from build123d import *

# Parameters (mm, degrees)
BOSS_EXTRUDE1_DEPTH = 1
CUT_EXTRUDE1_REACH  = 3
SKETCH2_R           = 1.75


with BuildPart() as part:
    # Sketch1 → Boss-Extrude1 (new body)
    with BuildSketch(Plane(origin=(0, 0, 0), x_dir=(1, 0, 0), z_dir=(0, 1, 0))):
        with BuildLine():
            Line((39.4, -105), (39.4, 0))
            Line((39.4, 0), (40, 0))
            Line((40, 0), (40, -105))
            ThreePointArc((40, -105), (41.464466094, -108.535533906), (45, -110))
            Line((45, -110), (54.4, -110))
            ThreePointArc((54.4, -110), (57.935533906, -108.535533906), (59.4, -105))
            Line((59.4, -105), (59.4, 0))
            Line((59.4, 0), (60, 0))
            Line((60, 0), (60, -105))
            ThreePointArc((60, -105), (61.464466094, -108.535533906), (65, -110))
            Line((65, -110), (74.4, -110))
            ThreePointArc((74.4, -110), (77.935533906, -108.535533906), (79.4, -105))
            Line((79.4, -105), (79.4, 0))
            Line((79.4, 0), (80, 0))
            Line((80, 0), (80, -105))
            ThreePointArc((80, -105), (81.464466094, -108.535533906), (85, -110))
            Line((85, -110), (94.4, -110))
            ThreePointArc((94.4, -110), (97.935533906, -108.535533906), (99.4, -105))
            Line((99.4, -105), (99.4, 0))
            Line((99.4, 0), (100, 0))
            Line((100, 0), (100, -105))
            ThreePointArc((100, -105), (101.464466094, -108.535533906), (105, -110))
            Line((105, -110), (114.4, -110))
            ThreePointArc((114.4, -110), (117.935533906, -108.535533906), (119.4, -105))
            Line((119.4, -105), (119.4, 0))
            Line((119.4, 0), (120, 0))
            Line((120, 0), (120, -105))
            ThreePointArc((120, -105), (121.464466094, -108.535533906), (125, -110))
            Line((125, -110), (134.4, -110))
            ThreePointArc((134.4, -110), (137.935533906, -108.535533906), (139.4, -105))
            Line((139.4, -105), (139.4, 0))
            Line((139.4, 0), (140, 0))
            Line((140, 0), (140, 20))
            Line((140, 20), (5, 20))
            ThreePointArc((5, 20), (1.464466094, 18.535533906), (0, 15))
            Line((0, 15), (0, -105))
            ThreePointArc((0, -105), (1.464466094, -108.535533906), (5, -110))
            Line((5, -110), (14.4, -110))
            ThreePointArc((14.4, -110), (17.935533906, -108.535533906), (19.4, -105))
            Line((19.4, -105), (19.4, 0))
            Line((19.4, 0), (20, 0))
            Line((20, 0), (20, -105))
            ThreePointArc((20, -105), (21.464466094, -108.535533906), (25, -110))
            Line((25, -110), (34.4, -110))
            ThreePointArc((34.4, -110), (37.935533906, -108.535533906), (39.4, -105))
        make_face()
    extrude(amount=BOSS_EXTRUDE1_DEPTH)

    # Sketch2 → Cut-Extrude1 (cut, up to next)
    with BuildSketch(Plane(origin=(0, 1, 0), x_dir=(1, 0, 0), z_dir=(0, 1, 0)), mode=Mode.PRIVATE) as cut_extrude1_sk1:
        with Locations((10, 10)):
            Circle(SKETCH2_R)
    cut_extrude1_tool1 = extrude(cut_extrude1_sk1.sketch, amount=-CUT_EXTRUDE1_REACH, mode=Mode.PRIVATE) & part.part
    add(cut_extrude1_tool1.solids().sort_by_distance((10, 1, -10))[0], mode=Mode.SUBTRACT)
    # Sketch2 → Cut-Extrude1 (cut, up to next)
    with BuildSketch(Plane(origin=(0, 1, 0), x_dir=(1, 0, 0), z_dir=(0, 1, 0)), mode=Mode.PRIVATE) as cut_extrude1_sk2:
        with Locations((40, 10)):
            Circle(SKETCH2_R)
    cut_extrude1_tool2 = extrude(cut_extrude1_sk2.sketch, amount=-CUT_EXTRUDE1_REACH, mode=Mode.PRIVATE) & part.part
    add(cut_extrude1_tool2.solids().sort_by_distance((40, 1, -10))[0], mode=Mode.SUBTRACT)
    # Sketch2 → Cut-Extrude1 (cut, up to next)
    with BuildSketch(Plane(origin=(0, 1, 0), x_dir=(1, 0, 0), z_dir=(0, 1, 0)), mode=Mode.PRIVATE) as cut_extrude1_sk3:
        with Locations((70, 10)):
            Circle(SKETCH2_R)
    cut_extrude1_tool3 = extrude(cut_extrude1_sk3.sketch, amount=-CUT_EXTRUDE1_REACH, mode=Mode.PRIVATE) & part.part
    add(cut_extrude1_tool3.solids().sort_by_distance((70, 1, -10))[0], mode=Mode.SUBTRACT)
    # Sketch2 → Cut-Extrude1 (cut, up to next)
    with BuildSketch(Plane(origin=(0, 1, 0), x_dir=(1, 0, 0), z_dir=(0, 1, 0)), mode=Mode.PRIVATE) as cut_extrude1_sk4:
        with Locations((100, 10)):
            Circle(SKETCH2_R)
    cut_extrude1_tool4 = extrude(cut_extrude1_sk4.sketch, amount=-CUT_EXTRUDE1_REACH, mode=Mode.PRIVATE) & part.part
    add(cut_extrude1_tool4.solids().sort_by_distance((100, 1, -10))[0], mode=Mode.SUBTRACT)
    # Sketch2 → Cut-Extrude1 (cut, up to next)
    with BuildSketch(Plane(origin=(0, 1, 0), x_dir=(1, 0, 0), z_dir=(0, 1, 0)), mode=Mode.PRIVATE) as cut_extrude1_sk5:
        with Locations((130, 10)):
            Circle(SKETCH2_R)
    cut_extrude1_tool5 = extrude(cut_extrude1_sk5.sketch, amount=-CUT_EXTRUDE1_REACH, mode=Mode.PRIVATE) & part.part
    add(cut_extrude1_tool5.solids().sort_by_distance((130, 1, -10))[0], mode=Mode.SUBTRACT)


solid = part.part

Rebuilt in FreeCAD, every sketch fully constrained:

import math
import FreeCAD as App
import Part
import Sketcher

V = App.Vector
Q = App.Units.Quantity

doc = App.newDocument("Part")
body = doc.addObject("PartDesign::Body", "Body")

# Sketch on XZ plane
sketch1 = body.newObject("Sketcher::SketchObject", "Sketch")
sketch1.AttachmentSupport = (doc.getObject("XZ_Plane"), [""])
sketch1.MapMode = "FlatFace"
sketch1.addGeometry(Part.LineSegment(V(39.4, 105, 0), V(39.4, 0, 0)), False)
sketch1.addGeometry(Part.LineSegment(V(39.4, 0, 0), V(40, 0, 0)), False)
sketch1.addGeometry(Part.LineSegment(V(40, 0, 0), V(40, 105, 0)), False)
sketch1.addGeometry(Part.ArcOfCircle(Part.Circle(V(45, 105, 0), V(0, 0, 1), 5), math.radians(90), math.radians(180)), False)
sketch1.addGeometry(Part.LineSegment(V(45, 110, 0), V(54.4, 110, 0)), False)
sketch1.addGeometry(Part.ArcOfCircle(Part.Circle(V(54.4, 105, 0), V(0, 0, 1), 5), math.radians(0), math.radians(90)), False)
sketch1.addGeometry(Part.LineSegment(V(59.4, 105, 0), V(59.4, 0, 0)), False)
sketch1.addGeometry(Part.LineSegment(V(59.4, 0, 0), V(60, 0, 0)), False)
sketch1.addGeometry(Part.LineSegment(V(60, 0, 0), V(60, 105, 0)), False)
sketch1.addGeometry(Part.ArcOfCircle(Part.Circle(V(65, 105, 0), V(0, 0, 1), 5), math.radians(90), math.radians(180)), False)
sketch1.addGeometry(Part.LineSegment(V(65, 110, 0), V(74.4, 110, 0)), False)
sketch1.addGeometry(Part.ArcOfCircle(Part.Circle(V(74.4, 105, 0), V(0, 0, 1), 5), math.radians(0), math.radians(90)), False)
sketch1.addGeometry(Part.LineSegment(V(79.4, 105, 0), V(79.4, 0, 0)), False)
sketch1.addGeometry(Part.LineSegment(V(79.4, 0, 0), V(80, 0, 0)), False)
sketch1.addGeometry(Part.LineSegment(V(80, 0, 0), V(80, 105, 0)), False)
sketch1.addGeometry(Part.ArcOfCircle(Part.Circle(V(85, 105, 0), V(0, 0, 1), 5), math.radians(90), math.radians(180)), False)
sketch1.addGeometry(Part.LineSegment(V(85, 110, 0), V(94.4, 110, 0)), False)
sketch1.addGeometry(Part.ArcOfCircle(Part.Circle(V(94.4, 105, 0), V(0, 0, 1), 5), math.radians(0), math.radians(90)), False)
sketch1.addGeometry(Part.LineSegment(V(99.4, 105, 0), V(99.4, 0, 0)), False)
sketch1.addGeometry(Part.LineSegment(V(99.4, 0, 0), V(100, 0, 0)), False)
sketch1.addGeometry(Part.LineSegment(V(100, 0, 0), V(100, 105, 0)), False)
sketch1.addGeometry(Part.ArcOfCircle(Part.Circle(V(105, 105, 0), V(0, 0, 1), 5), math.radians(90), math.radians(180)), False)
sketch1.addGeometry(Part.LineSegment(V(105, 110, 0), V(114.4, 110, 0)), False)
sketch1.addGeometry(Part.ArcOfCircle(Part.Circle(V(114.4, 105, 0), V(0, 0, 1), 5), math.radians(0), math.radians(90)), False)
sketch1.addGeometry(Part.LineSegment(V(119.4, 105, 0), V(119.4, 0, 0)), False)
sketch1.addGeometry(Part.LineSegment(V(119.4, 0, 0), V(120, 0, 0)), False)
sketch1.addGeometry(Part.LineSegment(V(120, 0, 0), V(120, 105, 0)), False)
sketch1.addGeometry(Part.ArcOfCircle(Part.Circle(V(125, 105, 0), V(0, 0, 1), 5), math.radians(90), math.radians(180)), False)
sketch1.addGeometry(Part.LineSegment(V(125, 110, 0), V(134.4, 110, 0)), False)
sketch1.addGeometry(Part.ArcOfCircle(Part.Circle(V(134.4, 105, 0), V(0, 0, 1), 5), math.radians(0), math.radians(90)), False)
sketch1.addGeometry(Part.LineSegment(V(139.4, 105, 0), V(139.4, 0, 0)), False)
sketch1.addGeometry(Part.LineSegment(V(139.4, 0, 0), V(140, 0, 0)), False)
sketch1.addGeometry(Part.LineSegment(V(140, 0, 0), V(140, -20, 0)), False)
sketch1.addGeometry(Part.LineSegment(V(140, -20, 0), V(5, -20, 0)), False)
sketch1.addGeometry(Part.ArcOfCircle(Part.Circle(V(5, -15, 0), V(0, 0, 1), 5), math.radians(180), math.radians(270)), False)
sketch1.addGeometry(Part.LineSegment(V(0, -15, 0), V(0, 105, 0)), False)
sketch1.addGeometry(Part.ArcOfCircle(Part.Circle(V(5, 105, 0), V(0, 0, 1), 5), math.radians(90), math.radians(180)), False)
sketch1.addGeometry(Part.LineSegment(V(5, 110, 0), V(14.4, 110, 0)), False)
sketch1.addGeometry(Part.ArcOfCircle(Part.Circle(V(14.4, 105, 0), V(0, 0, 1), 5), math.radians(0), math.radians(90)), False)
sketch1.addGeometry(Part.LineSegment(V(19.4, 105, 0), V(19.4, 0, 0)), False)
sketch1.addGeometry(Part.LineSegment(V(19.4, 0, 0), V(20, 0, 0)), False)
sketch1.addGeometry(Part.LineSegment(V(20, 0, 0), V(20, 105, 0)), False)
sketch1.addGeometry(Part.ArcOfCircle(Part.Circle(V(25, 105, 0), V(0, 0, 1), 5), math.radians(90), math.radians(180)), False)
sketch1.addGeometry(Part.LineSegment(V(25, 110, 0), V(34.4, 110, 0)), False)
sketch1.addGeometry(Part.ArcOfCircle(Part.Circle(V(34.4, 105, 0), V(0, 0, 1), 5), math.radians(0), math.radians(90)), False)
sketch1.addConstraint(Sketcher.Constraint("Coincident", 0, 2, 1, 1))
sketch1.addConstraint(Sketcher.Constraint("Coincident", 1, 2, 2, 1))
sketch1.addConstraint(Sketcher.Constraint("Tangent", 2, 2, 3, 2))
sketch1.addConstraint(Sketcher.Constraint("Tangent", 3, 1, 4, 1))
sketch1.addConstraint(Sketcher.Constraint("Tangent", 4, 2, 5, 2))
sketch1.addConstraint(Sketcher.Constraint("Tangent", 5, 1, 6, 1))
sketch1.addConstraint(Sketcher.Constraint("Coincident", 6, 2, 7, 1))
sketch1.addConstraint(Sketcher.Constraint("Coincident", 7, 2, 8, 1))
sketch1.addConstraint(Sketcher.Constraint("Tangent", 8, 2, 9, 2))
sketch1.addConstraint(Sketcher.Constraint("Tangent", 9, 1, 10, 1))
sketch1.addConstraint(Sketcher.Constraint("Tangent", 10, 2, 11, 2))
sketch1.addConstraint(Sketcher.Constraint("Tangent", 11, 1, 12, 1))
sketch1.addConstraint(Sketcher.Constraint("Coincident", 12, 2, 13, 1))
sketch1.addConstraint(Sketcher.Constraint("Coincident", 13, 2, 14, 1))
sketch1.addConstraint(Sketcher.Constraint("Tangent", 14, 2, 15, 2))
sketch1.addConstraint(Sketcher.Constraint("Tangent", 15, 1, 16, 1))
sketch1.addConstraint(Sketcher.Constraint("Tangent", 16, 2, 17, 2))
sketch1.addConstraint(Sketcher.Constraint("Tangent", 17, 1, 18, 1))
sketch1.addConstraint(Sketcher.Constraint("Coincident", 18, 2, 19, 1))
sketch1.addConstraint(Sketcher.Constraint("Coincident", 19, 2, 20, 1))
sketch1.addConstraint(Sketcher.Constraint("Tangent", 20, 2, 21, 2))
sketch1.addConstraint(Sketcher.Constraint("Tangent", 21, 1, 22, 1))
sketch1.addConstraint(Sketcher.Constraint("Tangent", 22, 2, 23, 2))
sketch1.addConstraint(Sketcher.Constraint("Tangent", 23, 1, 24, 1))
sketch1.addConstraint(Sketcher.Constraint("Coincident", 24, 2, 25, 1))
sketch1.addConstraint(Sketcher.Constraint("Coincident", 25, 2, 26, 1))
sketch1.addConstraint(Sketcher.Constraint("Tangent", 26, 2, 27, 2))
sketch1.addConstraint(Sketcher.Constraint("Tangent", 27, 1, 28, 1))
sketch1.addConstraint(Sketcher.Constraint("Tangent", 28, 2, 29, 2))
sketch1.addConstraint(Sketcher.Constraint("Tangent", 29, 1, 30, 1))
sketch1.addConstraint(Sketcher.Constraint("Coincident", 30, 2, 31, 1))
sketch1.addConstraint(Sketcher.Constraint("Coincident", 31, 2, 32, 1))
sketch1.addConstraint(Sketcher.Constraint("Coincident", 32, 2, 33, 1))
sketch1.addConstraint(Sketcher.Constraint("Tangent", 33, 2, 34, 2))
sketch1.addConstraint(Sketcher.Constraint("Tangent", 34, 1, 35, 1))
sketch1.addConstraint(Sketcher.Constraint("Tangent", 35, 2, 36, 2))
sketch1.addConstraint(Sketcher.Constraint("Tangent", 36, 1, 37, 1))
sketch1.addConstraint(Sketcher.Constraint("Tangent", 37, 2, 38, 2))
sketch1.addConstraint(Sketcher.Constraint("Tangent", 38, 1, 39, 1))
sketch1.addConstraint(Sketcher.Constraint("Coincident", 39, 2, 40, 1))
sketch1.addConstraint(Sketcher.Constraint("Coincident", 40, 2, 41, 1))
sketch1.addConstraint(Sketcher.Constraint("Tangent", 41, 2, 42, 2))
sketch1.addConstraint(Sketcher.Constraint("Tangent", 42, 1, 43, 1))
sketch1.addConstraint(Sketcher.Constraint("Tangent", 43, 2, 44, 2))
sketch1.addConstraint(Sketcher.Constraint("Tangent", 44, 1, 0, 1))
sketch1.addConstraint(Sketcher.Constraint("Vertical", 0))
sketch1.addConstraint(Sketcher.Constraint("Horizontal", 1))
sketch1.addConstraint(Sketcher.Constraint("Vertical", 2))
sketch1.addConstraint(Sketcher.Constraint("Horizontal", 4))
sketch1.addConstraint(Sketcher.Constraint("Vertical", 6))
sketch1.addConstraint(Sketcher.Constraint("Horizontal", 7))
sketch1.addConstraint(Sketcher.Constraint("Vertical", 8))
sketch1.addConstraint(Sketcher.Constraint("Horizontal", 10))
sketch1.addConstraint(Sketcher.Constraint("Vertical", 12))
sketch1.addConstraint(Sketcher.Constraint("Horizontal", 13))
sketch1.addConstraint(Sketcher.Constraint("Vertical", 14))
sketch1.addConstraint(Sketcher.Constraint("Horizontal", 16))
sketch1.addConstraint(Sketcher.Constraint("Vertical", 18))
sketch1.addConstraint(Sketcher.Constraint("Horizontal", 19))
sketch1.addConstraint(Sketcher.Constraint("Vertical", 20))
sketch1.addConstraint(Sketcher.Constraint("Horizontal", 22))
sketch1.addConstraint(Sketcher.Constraint("Vertical", 24))
sketch1.addConstraint(Sketcher.Constraint("Horizontal", 25))
sketch1.addConstraint(Sketcher.Constraint("Vertical", 26))
sketch1.addConstraint(Sketcher.Constraint("Horizontal", 28))
sketch1.addConstraint(Sketcher.Constraint("Vertical", 30))
sketch1.addConstraint(Sketcher.Constraint("Horizontal", 31))
sketch1.addConstraint(Sketcher.Constraint("Vertical", 32))
sketch1.addConstraint(Sketcher.Constraint("Horizontal", 33))
sketch1.addConstraint(Sketcher.Constraint("Vertical", 35))
sketch1.addConstraint(Sketcher.Constraint("Horizontal", 37))
sketch1.addConstraint(Sketcher.Constraint("Vertical", 39))
sketch1.addConstraint(Sketcher.Constraint("Horizontal", 40))
sketch1.addConstraint(Sketcher.Constraint("Vertical", 41))
sketch1.addConstraint(Sketcher.Constraint("Horizontal", 43))
sketch1.addConstraint(Sketcher.Constraint("Equal", 3, 5))
sketch1.addConstraint(Sketcher.Constraint("Equal", 5, 9))
sketch1.addConstraint(Sketcher.Constraint("Equal", 9, 11))
sketch1.addConstraint(Sketcher.Constraint("Equal", 11, 15))
sketch1.addConstraint(Sketcher.Constraint("Equal", 15, 17))
sketch1.addConstraint(Sketcher.Constraint("Equal", 17, 21))
sketch1.addConstraint(Sketcher.Constraint("Equal", 21, 23))
sketch1.addConstraint(Sketcher.Constraint("Equal", 23, 27))
sketch1.addConstraint(Sketcher.Constraint("Equal", 27, 29))
sketch1.addConstraint(Sketcher.Constraint("Equal", 29, 34))
sketch1.addConstraint(Sketcher.Constraint("Equal", 34, 36))
sketch1.addConstraint(Sketcher.Constraint("Equal", 36, 38))
sketch1.addConstraint(Sketcher.Constraint("Equal", 38, 42))
sketch1.addConstraint(Sketcher.Constraint("Equal", 42, 44))
sketch1.addConstraint(Sketcher.Constraint("PointOnObject", 0, 2, -1))
sketch1.addConstraint(Sketcher.Constraint("PointOnObject", 6, 2, -1))
sketch1.addConstraint(Sketcher.Constraint("PointOnObject", 12, 2, -1))
sketch1.addConstraint(Sketcher.Constraint("PointOnObject", 18, 2, -1))
sketch1.addConstraint(Sketcher.Constraint("PointOnObject", 24, 2, -1))
sketch1.addConstraint(Sketcher.Constraint("PointOnObject", 30, 2, -1))
sketch1.addConstraint(Sketcher.Constraint("PointOnObject", 34, 1, -2))
sketch1.addConstraint(Sketcher.Constraint("PointOnObject", 39, 2, -1))
sketch1.addConstraint(Sketcher.Constraint("Horizontal", 5, 3, 9, 3))
sketch1.addConstraint(Sketcher.Constraint("Horizontal", 11, 3, 15, 3))
sketch1.addConstraint(Sketcher.Constraint("Horizontal", 17, 3, 21, 3))
sketch1.addConstraint(Sketcher.Constraint("Horizontal", 23, 3, 27, 3))
sketch1.addConstraint(Sketcher.Constraint("Horizontal", 29, 3, 36, 3))
sketch1.addConstraint(Sketcher.Constraint("Horizontal", 38, 3, 42, 3))
sketch1.addConstraint(Sketcher.Constraint("Equal", 1, 7))
sketch1.addConstraint(Sketcher.Constraint("Equal", 4, 10))
sketch1.addConstraint(Sketcher.Constraint("Equal", 7, 13))
sketch1.addConstraint(Sketcher.Constraint("Equal", 10, 16))
sketch1.addConstraint(Sketcher.Constraint("Equal", 13, 19))
sketch1.addConstraint(Sketcher.Constraint("Equal", 16, 22))
sketch1.addConstraint(Sketcher.Constraint("Equal", 19, 25))
sketch1.addConstraint(Sketcher.Constraint("Equal", 22, 28))
sketch1.addConstraint(Sketcher.Constraint("Equal", 25, 31))
sketch1.addConstraint(Sketcher.Constraint("Equal", 28, 37))
sketch1.addConstraint(Sketcher.Constraint("Equal", 31, 40))
sketch1.addConstraint(Sketcher.Constraint("Equal", 37, 43))
sketch1.addConstraint(Sketcher.Constraint("Radius", 3, Q("5 mm")))
sketch1.addConstraint(Sketcher.Constraint("DistanceX", 33, 2, 33, 1, Q("135 mm")))
sketch1.addConstraint(Sketcher.Constraint("DistanceY", 0, 2, 0, 1, Q("105 mm")))
sketch1.addConstraint(Sketcher.Constraint("DistanceY", 32, 2, 32, 1, Q("20 mm")))
sketch1.addConstraint(Sketcher.Constraint("DistanceX", 1, 1, 1, 2, Q("0.6 mm")))
pad1 = body.newObject("PartDesign::Pad", "Pad")
pad1.Profile = sketch1
pad1.Length = 1
pad1.Reversed = True

# Sketch on XZ plane
sketch2 = body.newObject("Sketcher::SketchObject", "Sketch001")
sketch2.AttachmentSupport = (doc.getObject("XZ_Plane"), [""])
sketch2.MapMode = "FlatFace"
sketch2.AttachmentOffset = App.Placement(V(0, 0, -1), App.Rotation())
sketch2.addGeometry(Part.Circle(V(10, -10, 0), V(0, 0, 1), 1.8), False)
sketch2.addConstraint(Sketcher.Constraint("Diameter", 0, Q("3.5 mm")))
sketch2.addConstraint(Sketcher.Constraint("DistanceX", -1, 1, 0, 3, Q("10 mm")))
sketch2.addConstraint(Sketcher.Constraint("DistanceY", 0, 3, -1, 1, Q("10 mm")))
pocket1 = body.newObject("PartDesign::Pocket", "Pocket")
pocket1.Profile = sketch2
pocket1.Type = "UpToFirst"
pocket1.Reversed = True

# Sketch on XZ plane
sketch3 = body.newObject("Sketcher::SketchObject", "Sketch002")
sketch3.AttachmentSupport = (doc.getObject("XZ_Plane"), [""])
sketch3.MapMode = "FlatFace"
sketch3.AttachmentOffset = App.Placement(V(0, 0, -1), App.Rotation())
sketch3.addGeometry(Part.Circle(V(40, -10, 0), V(0, 0, 1), 1.8), False)
sketch3.addConstraint(Sketcher.Constraint("Diameter", 0, Q("3.5 mm")))
sketch3.addConstraint(Sketcher.Constraint("DistanceX", -1, 1, 0, 3, Q("40 mm")))
sketch3.addConstraint(Sketcher.Constraint("DistanceY", 0, 3, -1, 1, Q("10 mm")))
pocket2 = body.newObject("PartDesign::Pocket", "Pocket001")
pocket2.Profile = sketch3
pocket2.Type = "UpToFirst"
pocket2.Reversed = True

# Sketch on XZ plane
sketch4 = body.newObject("Sketcher::SketchObject", "Sketch003")
sketch4.AttachmentSupport = (doc.getObject("XZ_Plane"), [""])
sketch4.MapMode = "FlatFace"
sketch4.AttachmentOffset = App.Placement(V(0, 0, -1), App.Rotation())
sketch4.addGeometry(Part.Circle(V(70, -10, 0), V(0, 0, 1), 1.8), False)
sketch4.addConstraint(Sketcher.Constraint("Diameter", 0, Q("3.5 mm")))
sketch4.addConstraint(Sketcher.Constraint("DistanceX", -1, 1, 0, 3, Q("70 mm")))
sketch4.addConstraint(Sketcher.Constraint("DistanceY", 0, 3, -1, 1, Q("10 mm")))
pocket3 = body.newObject("PartDesign::Pocket", "Pocket002")
pocket3.Profile = sketch4
pocket3.Type = "UpToFirst"
pocket3.Reversed = True

# Sketch on XZ plane
sketch5 = body.newObject("Sketcher::SketchObject", "Sketch004")
sketch5.AttachmentSupport = (doc.getObject("XZ_Plane"), [""])
sketch5.MapMode = "FlatFace"
sketch5.AttachmentOffset = App.Placement(V(0, 0, -1), App.Rotation())
sketch5.addGeometry(Part.Circle(V(100, -10, 0), V(0, 0, 1), 1.8), False)
sketch5.addConstraint(Sketcher.Constraint("Diameter", 0, Q("3.5 mm")))
sketch5.addConstraint(Sketcher.Constraint("DistanceX", -1, 1, 0, 3, Q("100 mm")))
sketch5.addConstraint(Sketcher.Constraint("DistanceY", 0, 3, -1, 1, Q("10 mm")))
pocket4 = body.newObject("PartDesign::Pocket", "Pocket003")
pocket4.Profile = sketch5
pocket4.Type = "UpToFirst"
pocket4.Reversed = True

# Sketch on XZ plane
sketch6 = body.newObject("Sketcher::SketchObject", "Sketch005")
sketch6.AttachmentSupport = (doc.getObject("XZ_Plane"), [""])
sketch6.MapMode = "FlatFace"
sketch6.AttachmentOffset = App.Placement(V(0, 0, -1), App.Rotation())
sketch6.addGeometry(Part.Circle(V(130, -10, 0), V(0, 0, 1), 1.8), False)
sketch6.addConstraint(Sketcher.Constraint("Diameter", 0, Q("3.5 mm")))
sketch6.addConstraint(Sketcher.Constraint("DistanceX", -1, 1, 0, 3, Q("130 mm")))
sketch6.addConstraint(Sketcher.Constraint("DistanceY", 0, 3, -1, 1, Q("10 mm")))
pocket5 = body.newObject("PartDesign::Pocket", "Pocket004")
pocket5.Profile = sketch6
pocket5.Type = "UpToFirst"
pocket5.Reversed = True

doc.recompute()
